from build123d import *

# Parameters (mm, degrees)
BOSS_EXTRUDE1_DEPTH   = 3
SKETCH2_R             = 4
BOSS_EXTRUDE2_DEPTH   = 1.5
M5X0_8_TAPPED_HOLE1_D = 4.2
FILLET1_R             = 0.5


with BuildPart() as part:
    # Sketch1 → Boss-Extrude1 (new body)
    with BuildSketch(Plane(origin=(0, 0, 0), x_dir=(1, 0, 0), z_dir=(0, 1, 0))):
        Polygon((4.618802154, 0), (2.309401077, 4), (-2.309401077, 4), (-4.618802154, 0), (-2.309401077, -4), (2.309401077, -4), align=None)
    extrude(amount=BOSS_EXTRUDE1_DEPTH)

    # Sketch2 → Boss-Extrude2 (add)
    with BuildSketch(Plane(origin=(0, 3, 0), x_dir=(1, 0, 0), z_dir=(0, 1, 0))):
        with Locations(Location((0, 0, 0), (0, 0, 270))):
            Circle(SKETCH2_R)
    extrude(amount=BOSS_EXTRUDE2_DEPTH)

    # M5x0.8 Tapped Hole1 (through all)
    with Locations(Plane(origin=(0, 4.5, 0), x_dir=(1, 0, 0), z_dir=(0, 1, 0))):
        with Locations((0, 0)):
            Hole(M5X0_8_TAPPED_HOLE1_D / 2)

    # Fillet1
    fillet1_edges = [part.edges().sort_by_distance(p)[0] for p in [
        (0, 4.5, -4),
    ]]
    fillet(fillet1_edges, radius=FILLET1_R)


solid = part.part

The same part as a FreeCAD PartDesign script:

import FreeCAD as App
import Part
import Sketcher
from FreeCAD import Vector
Q = App.Units.Quantity


def edges_at(feature, points):
    """Names of the edges that pass closest to the given points."""
    edges = feature.Shape.Edges
    near = lambda p: min(range(len(edges)), key=lambda i: edges[i].distToShape(Part.Vertex(*p))[0])
    return sorted({f"Edge{near(p) + 1}" for p in points})

doc = App.newDocument("Part")
body = doc.addObject("PartDesign::Body", "Body")

sketch1 = body.newObject("Sketcher::SketchObject", "Sketch")
sketch1.AttachmentSupport = (doc.getObject("XZ_Plane"), [""])
sketch1.MapMode = "FlatFace"
sketch1.addGeometry(Part.LineSegment(Vector(4.6, 0, 0), Vector(2.3, -4, 0)), False)
sketch1.addGeometry(Part.LineSegment(Vector(2.3, -4, 0), Vector(-2.3, -4, 0)), False)
sketch1.addGeometry(Part.LineSegment(Vector(-2.3, -4, 0), Vector(-4.6, 0, 0)), False)
sketch1.addGeometry(Part.LineSegment(Vector(-4.6, 0, 0), Vector(-2.3, 4, 0)), False)
sketch1.addGeometry(Part.LineSegment(Vector(-2.3, 4, 0), Vector(2.3, 4, 0)), False)
sketch1.addGeometry(Part.LineSegment(Vector(2.3, 4, 0), Vector(4.6, 0, 0)), False)
sketch1.addConstraint(Sketcher.Constraint("Coincident", 0, 2, 1, 1))
sketch1.addConstraint(Sketcher.Constraint("Coincident", 1, 2, 2, 1))
sketch1.addConstraint(Sketcher.Constraint("Coincident", 2, 2, 3, 1))
sketch1.addConstraint(Sketcher.Constraint("Coincident", 3, 2, 4, 1))
sketch1.addConstraint(Sketcher.Constraint("Coincident", 4, 2, 5, 1))
sketch1.addConstraint(Sketcher.Constraint("Coincident", 5, 2, 0, 1))
sketch1.addConstraint(Sketcher.Constraint("Horizontal", 1))
sketch1.addConstraint(Sketcher.Constraint("Horizontal", 4))
sketch1.addConstraint(Sketcher.Constraint("Symmetric", 0, 2, 3, 2, -1, 1))
sketch1.addConstraint(Sketcher.Constraint("Symmetric", 2, 2, 5, 2, -1, 1))
sketch1.addConstraint(Sketcher.Constraint("PointOnObject", 2, 2, -1))
sketch1.addConstraint(Sketcher.Constraint("Parallel", 2, 5))
sketch1.addConstraint(Sketcher.Constraint("Vertical", 1, 2, 3, 2))
sketch1.addConstraint(Sketcher.Constraint("Angle", 0, Q("-120 deg")))
sketch1.addConstraint(Sketcher.Constraint("DistanceY", 0, 2, -1, 1, Q("4 mm")))
sketch1.addConstraint(Sketcher.Constraint("DistanceX", -1, 1, 0, 2, Q("2.309401 mm")))
pad1 = body.newObject("PartDesign::Pad", "Pad")
pad1.Profile = sketch1
pad1.Length = 3
pad1.Reversed = True

sketch2 = body.newObject("Sketcher::SketchObject", "Sketch001")
sketch2.AttachmentSupport = (doc.getObject("XZ_Plane"), [""])
sketch2.MapMode = "FlatFace"
sketch2.AttachmentOffset = App.Placement(Vector(0, 0, -3), App.Rotation())
sketch2.addGeometry(Part.Circle(Vector(0, 0, 0), Vector(0, 0, 1), 4), False)
sketch2.addConstraint(Sketcher.Constraint("Coincident", 0, 3, -1, 1))
sketch2.addConstraint(Sketcher.Constraint("Diameter", 0, Q("8 mm")))
pad2 = body.newObject("PartDesign::Pad", "Pad001")
pad2.Profile = sketch2
pad2.Length = 1.5
pad2.Reversed = True

sketch3 = body.newObject("Sketcher::SketchObject", "Sketch002")
sketch3.AttachmentSupport = (doc.getObject("XZ_Plane"), [""])
sketch3.MapMode = "FlatFace"
sketch3.AttachmentOffset = App.Placement(Vector(0, 0, -4.5), App.Rotation())
sketch3.addGeometry(Part.Circle(Vector(0, 0, 0), Vector(0, 0, 1), 2.1), False)
sketch3.addConstraint(Sketcher.Constraint("Coincident", 0, 3, -1, 1))
sketch3.addConstraint(Sketcher.Constraint("Diameter", 0, Q("4.2 mm")))
doc.recompute()
hole = body.newObject("PartDesign::Hole", "Hole")
hole.Profile = sketch3
hole.ThreadType = "None"
hole.Diameter = 4.2
hole.DepthType = "ThroughAll"
hole.Reversed = True
doc.recompute()

fillet = body.newObject("PartDesign::Fillet", "Fillet")
fillet.Base = (hole, edges_at(hole, [(0, 4.5, -4)]))
fillet.Radius = 0.5

doc.recompute()
